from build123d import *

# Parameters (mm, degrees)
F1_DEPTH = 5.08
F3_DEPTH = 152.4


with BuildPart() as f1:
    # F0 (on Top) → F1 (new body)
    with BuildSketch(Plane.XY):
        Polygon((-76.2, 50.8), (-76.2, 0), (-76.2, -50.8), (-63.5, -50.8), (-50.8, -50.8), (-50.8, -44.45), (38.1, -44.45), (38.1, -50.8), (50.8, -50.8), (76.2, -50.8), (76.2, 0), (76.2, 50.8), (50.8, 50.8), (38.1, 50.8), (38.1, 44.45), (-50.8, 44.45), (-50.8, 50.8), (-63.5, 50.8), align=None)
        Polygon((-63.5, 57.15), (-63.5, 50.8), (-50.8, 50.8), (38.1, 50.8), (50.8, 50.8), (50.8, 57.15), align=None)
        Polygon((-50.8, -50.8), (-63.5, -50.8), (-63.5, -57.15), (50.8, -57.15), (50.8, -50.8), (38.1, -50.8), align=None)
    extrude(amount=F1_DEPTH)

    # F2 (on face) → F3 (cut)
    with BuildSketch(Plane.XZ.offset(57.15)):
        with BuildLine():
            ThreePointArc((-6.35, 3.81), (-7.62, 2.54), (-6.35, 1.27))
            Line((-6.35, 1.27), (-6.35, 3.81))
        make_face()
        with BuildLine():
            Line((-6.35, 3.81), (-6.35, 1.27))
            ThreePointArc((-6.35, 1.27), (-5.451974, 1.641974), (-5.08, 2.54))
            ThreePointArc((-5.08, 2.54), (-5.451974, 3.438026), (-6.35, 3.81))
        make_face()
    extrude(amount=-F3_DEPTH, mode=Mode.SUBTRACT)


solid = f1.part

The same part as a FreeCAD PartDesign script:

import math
import FreeCAD as App
import Part
import Sketcher

V = App.Vector
Q = App.Units.Quantity

doc = App.newDocument("Part")
params = doc.addObject("Spreadsheet::Sheet", "Params")
for row, (alias, value) in enumerate([
    ("sketch1_width", "1 in"),
    ("sketch1_height", "4 in"),
    ("sketch1_width2", "0.5 in"),
    ("sketch1_width3", "4.5 in"),
    ("sketch1_width4", "3.5 in"),
    ("pad1_length", "0.2 in"),
    ("sketch2_radius", "0.05 in"),
    ("pocket1_length", "6 in"),
], start=1):
    params.set(f"A{row}", alias)
    params.set(f"B{row}", "=" + value)
    params.setAlias(f"B{row}", alias)

body = doc.addObject("PartDesign::Body", "Body")

sketch1 = doc.addObject("Sketcher::SketchObject", "Sketch")
body.addObject(sketch1)
sketch1.AttachmentSupport = (doc.XY_Plane, [""])
sketch1.MapMode = "FlatFace"
sketch1.addGeometry(Part.LineSegment(V(-76.2, 50.8, 0), V(-76.2, -50.8, 0)), False)
sketch1.addGeometry(Part.LineSegment(V(-76.2, -50.8, 0), V(-63.5, -50.8, 0)), False)
sketch1.addGeometry(Part.LineSegment(V(-63.5, -50.8, 0), V(-63.5, -57.15, 0)), False)
sketch1.addGeometry(Part.LineSegment(V(-63.5, -57.15, 0), V(50.8, -57.15, 0)), False)
sketch1.addGeometry(Part.LineSegment(V(50.8, -57.15, 0), V(50.8, -50.8, 0)), False)
sketch1.addGeometry(Part.LineSegment(V(50.8, -50.8, 0), V(76.2, -50.8, 0)), False)
sketch1.addGeometry(Part.LineSegment(V(76.2, -50.8, 0), V(76.2, 50.8, 0)), False)
sketch1.addGeometry(Part.LineSegment(V(76.2, 50.8, 0), V(50.8, 50.8, 0)), False)
sketch1.addGeometry(Part.LineSegment(V(50.8, 50.8, 0), V(50.8, 57.15, 0)), False)
sketch1.addGeometry(Part.LineSegment(V(50.8, 57.15, 0), V(-63.5, 57.15, 0)), False)
sketch1.addGeometry(Part.LineSegment(V(-63.5, 57.15, 0), V(-63.5, 50.8, 0)), False)
sketch1.addGeometry(Part.LineSegment(V(-63.5, 50.8, 0), V(-76.2, 50.8, 0)), False)
sketch1.addGeometry(Part.LineSegment(V(-50.8, -50.8, 0), V(-50.8, -44.45, 0)), False)
sketch1.addGeometry(Part.LineSegment(V(-50.8, -44.45, 0), V(38.1, -44.45, 0)), False)
sketch1.addGeometry(Part.LineSegment(V(38.1, -44.45, 0), V(38.1, -50.8, 0)), False)
sketch1.addGeometry(Part.LineSegment(V(38.1, -50.8, 0), V(-50.8, -50.8, 0)), False)
sketch1.addGeometry(Part.LineSegment(V(38.1, 50.8, 0), V(38.1, 44.45, 0)), False)
sketch1.addGeometry(Part.LineSegment(V(38.1, 44.45, 0), V(-50.8, 44.45, 0)), False)
sketch1.addGeometry(Part.LineSegment(V(-50.8, 44.45, 0), V(-50.8, 50.8, 0)), False)
sketch1.addGeometry(Part.LineSegment(V(-50.8, 50.8, 0), V(38.1, 50.8, 0)), False)
sketch1.addConstraint(Sketcher.Constraint("Coincident", 0, 2, 1, 1))
sketch1.addConstraint(Sketcher.Constraint("Coincident", 1, 2, 2, 1))
sketch1.addConstraint(Sketcher.Constraint("Coincident", 2, 2, 3, 1))
sketch1.addConstraint(Sketcher.Constraint("Coincident", 3, 2, 4, 1))
sketch1.addConstraint(Sketcher.Constraint("Coincident", 4, 2, 5, 1))
sketch1.addConstraint(Sketcher.Constraint("Coincident", 5, 2, 6, 1))
sketch1.addConstraint(Sketcher.Constraint("Coincident", 6, 2, 7, 1))
sketch1.addConstraint(Sketcher.Constraint("Coincident", 7, 2, 8, 1))
sketch1.addConstraint(Sketcher.Constraint("Coincident", 8, 2, 9, 1))
sketch1.addConstraint(Sketcher.Constraint("Coincident", 9, 2, 10, 1))
sketch1.addConstraint(Sketcher.Constraint("Coincident", 10, 2, 11, 1))
sketch1.addConstraint(Sketcher.Constraint("Coincident", 11, 2, 0, 1))
sketch1.addConstraint(Sketcher.Constraint("Coincident", 12, 2, 13, 1))
sketch1.addConstraint(Sketcher.Constraint("Coincident", 13, 2, 14, 1))
sketch1.addConstraint(Sketcher.Constraint("Coincident", 14, 2, 15, 1))
sketch1.addConstraint(Sketcher.Constraint("Coincident", 15, 2, 12, 1))
sketch1.addConstraint(Sketcher.Constraint("Coincident", 16, 2, 17, 1))
sketch1.addConstraint(Sketcher.Constraint("Coincident", 17, 2, 18, 1))
sketch1.addConstraint(Sketcher.Constraint("Coincident", 18, 2, 19, 1))
sketch1.addConstraint(Sketcher.Constraint("Coincident", 19, 2, 16, 1))
sketch1.addConstraint(Sketcher.Constraint("Vertical", 0))
sketch1.addConstraint(Sketcher.Constraint("Horizontal", 1))
sketch1.addConstraint(Sketcher.Constraint("Vertical", 2))
sketch1.addConstraint(Sketcher.Constraint("Horizontal", 3))
sketch1.addConstraint(Sketcher.Constraint("Vertical", 4))
sketch1.addConstraint(Sketcher.Constraint("Horizontal", 5))
sketch1.addConstraint(Sketcher.Constraint("Vertical", 6))
sketch1.addConstraint(Sketcher.Constraint("Horizontal", 7))
sketch1.addConstraint(Sketcher.Constraint("Vertical", 8))
sketch1.addConstraint(Sketcher.Constraint("Horizontal", 9))
sketch1.addConstraint(Sketcher.Constraint("Vertical", 10))
sketch1.addConstraint(Sketcher.Constraint("Horizontal", 11))
sketch1.addConstraint(Sketcher.Constraint("Vertical", 12))
sketch1.addConstraint(Sketcher.Constraint("Horizontal", 13))
sketch1.addConstraint(Sketcher.Constraint("Vertical", 14))
sketch1.addConstraint(Sketcher.Constraint("Horizontal", 15))
sketch1.addConstraint(Sketcher.Constraint("Vertical", 16))
sketch1.addConstraint(Sketcher.Constraint("Horizontal", 17))
sketch1.addConstraint(Sketcher.Constraint("Vertical", 18))
sketch1.addConstraint(Sketcher.Constraint("Horizontal", 19))
sketch1.addConstraint(Sketcher.Constraint("Symmetric", 0, 2, 6, 2, -1, 1))
sketch1.addConstraint(Sketcher.Constraint("Symmetric", 7, 2, 15, 2, -1, 1))
sketch1.addConstraint(Sketcher.Constraint("Symmetric", 4, 2, 18, 2, -1, 1))
sketch1.addConstraint(Sketcher.Constraint("Symmetric", 4, 2, 15, 2, -2))
sketch1.addConstraint(Sketcher.Constraint("Symmetric", 2, 2, 9, 2, -1))
sketch1.addConstraint(Sketcher.Constraint("Symmetric", 13, 2, 16, 2, -1))
sketch1.addConstraint(Sketcher.Constraint("Horizontal", 7, 2, 10, 2))
sketch1.addConstraint(Sketcher.Constraint("Equal", 10, 12))
sketch1.addConstraint(Sketcher.Constraint("DistanceX", 5, 1, 5, 2, Q("1 in")))
sketch1.addConstraint(Sketcher.Constraint("DistanceY", 0, 2, 0, 1, Q("4 in")))
sketch1.addConstraint(Sketcher.Constraint("DistanceX", 1, 1, 1, 2, Q("0.5 in")))
sketch1.addConstraint(Sketcher.Constraint("DistanceX", 3, 1, 3, 2, Q("4.5 in")))
sketch1.addConstraint(Sketcher.Constraint("DistanceX", 13, 1, 13, 2, Q("3.5 in")))
sketch1.addConstraint(Sketcher.Constraint("DistanceY", 2, 2, 2, 1, Q("0.25 in")))
sketch1.setExpression("Constraints[48]", "Params.sketch1_width")
sketch1.setExpression("Constraints[49]", "Params.sketch1_height")
sketch1.setExpression("Constraints[50]", "Params.sketch1_width2")
sketch1.setExpression("Constraints[51]", "Params.sketch1_width3")
sketch1.setExpression("Constraints[52]", "Params.sketch1_width4")
pad1 = doc.addObject("PartDesign::Pad", "Pad")
body.addObject(pad1)
pad1.Profile = sketch1
pad1.setExpression("Length", "Params.pad1_length")

sketch2 = doc.addObject("Sketcher::SketchObject", "Sketch001")
body.addObject(sketch2)
sketch2.AttachmentSupport = (doc.XZ_Plane, [""])
sketch2.MapMode = "FlatFace"
sketch2.AttachmentOffset = App.Placement(V(0, 0, 2.25 * 25.4), App.Rotation())
sketch2.addGeometry(Part.ArcOfCircle(Part.Circle(V(-6.35, 2.54, 0), V(0, 0, 1), 1.27), math.radians(90), math.radians(270)), False)
sketch2.addGeometry(Part.ArcOfCircle(Part.Circle(V(-6.349999, 2.539999, 0), V(0, 0, 1), 1.269999), math.radians(-90.00006), math.radians(0.00006)), False)
sketch2.addGeometry(Part.ArcOfCircle(Part.Circle(V(-6.349999, 2.540001, 0), V(0, 0, 1), 1.269999), math.radians(-0.00006), math.radians(90.00006)), False)
sketch2.addConstraint(Sketcher.Constraint("Tangent", 0, 2, 1, 1))
sketch2.addConstraint(Sketcher.Constraint("Coincident", 1, 2, 2, 1))
sketch2.addConstraint(Sketcher.Constraint("Tangent", 2, 2, 0, 1))
sketch2.addConstraint(Sketcher.Constraint("Equal", 0, 1))
sketch2.addConstraint(Sketcher.Constraint("Horizontal", 2, 3, 1, 2))
sketch2.addConstraint(Sketcher.Constraint("Vertical", 2, 3, 0, 2))
sketch2.addConstraint(Sketcher.Constraint("Vertical", 0, 2, 2, 2))
sketch2.addConstraint(Sketcher.Constraint("Radius", 0, Q("0.05 in")))
sketch2.addConstraint(Sketcher.Constraint("DistanceY", -1, 1, 0, 3, Q("0.1 in")))
sketch2.addConstraint(Sketcher.Constraint("DistanceX", 1, 2, -1, 1, Q("0.2 in")))
sketch2.setExpression("Constraints[7]", "Params.sketch2_radius")
pocket1 = doc.addObject("PartDesign::Pocket", "Pocket")
body.addObject(pocket1)
pocket1.Profile = sketch2
pocket1.setExpression("Length", "Params.pocket1_length")

doc.recompute()
